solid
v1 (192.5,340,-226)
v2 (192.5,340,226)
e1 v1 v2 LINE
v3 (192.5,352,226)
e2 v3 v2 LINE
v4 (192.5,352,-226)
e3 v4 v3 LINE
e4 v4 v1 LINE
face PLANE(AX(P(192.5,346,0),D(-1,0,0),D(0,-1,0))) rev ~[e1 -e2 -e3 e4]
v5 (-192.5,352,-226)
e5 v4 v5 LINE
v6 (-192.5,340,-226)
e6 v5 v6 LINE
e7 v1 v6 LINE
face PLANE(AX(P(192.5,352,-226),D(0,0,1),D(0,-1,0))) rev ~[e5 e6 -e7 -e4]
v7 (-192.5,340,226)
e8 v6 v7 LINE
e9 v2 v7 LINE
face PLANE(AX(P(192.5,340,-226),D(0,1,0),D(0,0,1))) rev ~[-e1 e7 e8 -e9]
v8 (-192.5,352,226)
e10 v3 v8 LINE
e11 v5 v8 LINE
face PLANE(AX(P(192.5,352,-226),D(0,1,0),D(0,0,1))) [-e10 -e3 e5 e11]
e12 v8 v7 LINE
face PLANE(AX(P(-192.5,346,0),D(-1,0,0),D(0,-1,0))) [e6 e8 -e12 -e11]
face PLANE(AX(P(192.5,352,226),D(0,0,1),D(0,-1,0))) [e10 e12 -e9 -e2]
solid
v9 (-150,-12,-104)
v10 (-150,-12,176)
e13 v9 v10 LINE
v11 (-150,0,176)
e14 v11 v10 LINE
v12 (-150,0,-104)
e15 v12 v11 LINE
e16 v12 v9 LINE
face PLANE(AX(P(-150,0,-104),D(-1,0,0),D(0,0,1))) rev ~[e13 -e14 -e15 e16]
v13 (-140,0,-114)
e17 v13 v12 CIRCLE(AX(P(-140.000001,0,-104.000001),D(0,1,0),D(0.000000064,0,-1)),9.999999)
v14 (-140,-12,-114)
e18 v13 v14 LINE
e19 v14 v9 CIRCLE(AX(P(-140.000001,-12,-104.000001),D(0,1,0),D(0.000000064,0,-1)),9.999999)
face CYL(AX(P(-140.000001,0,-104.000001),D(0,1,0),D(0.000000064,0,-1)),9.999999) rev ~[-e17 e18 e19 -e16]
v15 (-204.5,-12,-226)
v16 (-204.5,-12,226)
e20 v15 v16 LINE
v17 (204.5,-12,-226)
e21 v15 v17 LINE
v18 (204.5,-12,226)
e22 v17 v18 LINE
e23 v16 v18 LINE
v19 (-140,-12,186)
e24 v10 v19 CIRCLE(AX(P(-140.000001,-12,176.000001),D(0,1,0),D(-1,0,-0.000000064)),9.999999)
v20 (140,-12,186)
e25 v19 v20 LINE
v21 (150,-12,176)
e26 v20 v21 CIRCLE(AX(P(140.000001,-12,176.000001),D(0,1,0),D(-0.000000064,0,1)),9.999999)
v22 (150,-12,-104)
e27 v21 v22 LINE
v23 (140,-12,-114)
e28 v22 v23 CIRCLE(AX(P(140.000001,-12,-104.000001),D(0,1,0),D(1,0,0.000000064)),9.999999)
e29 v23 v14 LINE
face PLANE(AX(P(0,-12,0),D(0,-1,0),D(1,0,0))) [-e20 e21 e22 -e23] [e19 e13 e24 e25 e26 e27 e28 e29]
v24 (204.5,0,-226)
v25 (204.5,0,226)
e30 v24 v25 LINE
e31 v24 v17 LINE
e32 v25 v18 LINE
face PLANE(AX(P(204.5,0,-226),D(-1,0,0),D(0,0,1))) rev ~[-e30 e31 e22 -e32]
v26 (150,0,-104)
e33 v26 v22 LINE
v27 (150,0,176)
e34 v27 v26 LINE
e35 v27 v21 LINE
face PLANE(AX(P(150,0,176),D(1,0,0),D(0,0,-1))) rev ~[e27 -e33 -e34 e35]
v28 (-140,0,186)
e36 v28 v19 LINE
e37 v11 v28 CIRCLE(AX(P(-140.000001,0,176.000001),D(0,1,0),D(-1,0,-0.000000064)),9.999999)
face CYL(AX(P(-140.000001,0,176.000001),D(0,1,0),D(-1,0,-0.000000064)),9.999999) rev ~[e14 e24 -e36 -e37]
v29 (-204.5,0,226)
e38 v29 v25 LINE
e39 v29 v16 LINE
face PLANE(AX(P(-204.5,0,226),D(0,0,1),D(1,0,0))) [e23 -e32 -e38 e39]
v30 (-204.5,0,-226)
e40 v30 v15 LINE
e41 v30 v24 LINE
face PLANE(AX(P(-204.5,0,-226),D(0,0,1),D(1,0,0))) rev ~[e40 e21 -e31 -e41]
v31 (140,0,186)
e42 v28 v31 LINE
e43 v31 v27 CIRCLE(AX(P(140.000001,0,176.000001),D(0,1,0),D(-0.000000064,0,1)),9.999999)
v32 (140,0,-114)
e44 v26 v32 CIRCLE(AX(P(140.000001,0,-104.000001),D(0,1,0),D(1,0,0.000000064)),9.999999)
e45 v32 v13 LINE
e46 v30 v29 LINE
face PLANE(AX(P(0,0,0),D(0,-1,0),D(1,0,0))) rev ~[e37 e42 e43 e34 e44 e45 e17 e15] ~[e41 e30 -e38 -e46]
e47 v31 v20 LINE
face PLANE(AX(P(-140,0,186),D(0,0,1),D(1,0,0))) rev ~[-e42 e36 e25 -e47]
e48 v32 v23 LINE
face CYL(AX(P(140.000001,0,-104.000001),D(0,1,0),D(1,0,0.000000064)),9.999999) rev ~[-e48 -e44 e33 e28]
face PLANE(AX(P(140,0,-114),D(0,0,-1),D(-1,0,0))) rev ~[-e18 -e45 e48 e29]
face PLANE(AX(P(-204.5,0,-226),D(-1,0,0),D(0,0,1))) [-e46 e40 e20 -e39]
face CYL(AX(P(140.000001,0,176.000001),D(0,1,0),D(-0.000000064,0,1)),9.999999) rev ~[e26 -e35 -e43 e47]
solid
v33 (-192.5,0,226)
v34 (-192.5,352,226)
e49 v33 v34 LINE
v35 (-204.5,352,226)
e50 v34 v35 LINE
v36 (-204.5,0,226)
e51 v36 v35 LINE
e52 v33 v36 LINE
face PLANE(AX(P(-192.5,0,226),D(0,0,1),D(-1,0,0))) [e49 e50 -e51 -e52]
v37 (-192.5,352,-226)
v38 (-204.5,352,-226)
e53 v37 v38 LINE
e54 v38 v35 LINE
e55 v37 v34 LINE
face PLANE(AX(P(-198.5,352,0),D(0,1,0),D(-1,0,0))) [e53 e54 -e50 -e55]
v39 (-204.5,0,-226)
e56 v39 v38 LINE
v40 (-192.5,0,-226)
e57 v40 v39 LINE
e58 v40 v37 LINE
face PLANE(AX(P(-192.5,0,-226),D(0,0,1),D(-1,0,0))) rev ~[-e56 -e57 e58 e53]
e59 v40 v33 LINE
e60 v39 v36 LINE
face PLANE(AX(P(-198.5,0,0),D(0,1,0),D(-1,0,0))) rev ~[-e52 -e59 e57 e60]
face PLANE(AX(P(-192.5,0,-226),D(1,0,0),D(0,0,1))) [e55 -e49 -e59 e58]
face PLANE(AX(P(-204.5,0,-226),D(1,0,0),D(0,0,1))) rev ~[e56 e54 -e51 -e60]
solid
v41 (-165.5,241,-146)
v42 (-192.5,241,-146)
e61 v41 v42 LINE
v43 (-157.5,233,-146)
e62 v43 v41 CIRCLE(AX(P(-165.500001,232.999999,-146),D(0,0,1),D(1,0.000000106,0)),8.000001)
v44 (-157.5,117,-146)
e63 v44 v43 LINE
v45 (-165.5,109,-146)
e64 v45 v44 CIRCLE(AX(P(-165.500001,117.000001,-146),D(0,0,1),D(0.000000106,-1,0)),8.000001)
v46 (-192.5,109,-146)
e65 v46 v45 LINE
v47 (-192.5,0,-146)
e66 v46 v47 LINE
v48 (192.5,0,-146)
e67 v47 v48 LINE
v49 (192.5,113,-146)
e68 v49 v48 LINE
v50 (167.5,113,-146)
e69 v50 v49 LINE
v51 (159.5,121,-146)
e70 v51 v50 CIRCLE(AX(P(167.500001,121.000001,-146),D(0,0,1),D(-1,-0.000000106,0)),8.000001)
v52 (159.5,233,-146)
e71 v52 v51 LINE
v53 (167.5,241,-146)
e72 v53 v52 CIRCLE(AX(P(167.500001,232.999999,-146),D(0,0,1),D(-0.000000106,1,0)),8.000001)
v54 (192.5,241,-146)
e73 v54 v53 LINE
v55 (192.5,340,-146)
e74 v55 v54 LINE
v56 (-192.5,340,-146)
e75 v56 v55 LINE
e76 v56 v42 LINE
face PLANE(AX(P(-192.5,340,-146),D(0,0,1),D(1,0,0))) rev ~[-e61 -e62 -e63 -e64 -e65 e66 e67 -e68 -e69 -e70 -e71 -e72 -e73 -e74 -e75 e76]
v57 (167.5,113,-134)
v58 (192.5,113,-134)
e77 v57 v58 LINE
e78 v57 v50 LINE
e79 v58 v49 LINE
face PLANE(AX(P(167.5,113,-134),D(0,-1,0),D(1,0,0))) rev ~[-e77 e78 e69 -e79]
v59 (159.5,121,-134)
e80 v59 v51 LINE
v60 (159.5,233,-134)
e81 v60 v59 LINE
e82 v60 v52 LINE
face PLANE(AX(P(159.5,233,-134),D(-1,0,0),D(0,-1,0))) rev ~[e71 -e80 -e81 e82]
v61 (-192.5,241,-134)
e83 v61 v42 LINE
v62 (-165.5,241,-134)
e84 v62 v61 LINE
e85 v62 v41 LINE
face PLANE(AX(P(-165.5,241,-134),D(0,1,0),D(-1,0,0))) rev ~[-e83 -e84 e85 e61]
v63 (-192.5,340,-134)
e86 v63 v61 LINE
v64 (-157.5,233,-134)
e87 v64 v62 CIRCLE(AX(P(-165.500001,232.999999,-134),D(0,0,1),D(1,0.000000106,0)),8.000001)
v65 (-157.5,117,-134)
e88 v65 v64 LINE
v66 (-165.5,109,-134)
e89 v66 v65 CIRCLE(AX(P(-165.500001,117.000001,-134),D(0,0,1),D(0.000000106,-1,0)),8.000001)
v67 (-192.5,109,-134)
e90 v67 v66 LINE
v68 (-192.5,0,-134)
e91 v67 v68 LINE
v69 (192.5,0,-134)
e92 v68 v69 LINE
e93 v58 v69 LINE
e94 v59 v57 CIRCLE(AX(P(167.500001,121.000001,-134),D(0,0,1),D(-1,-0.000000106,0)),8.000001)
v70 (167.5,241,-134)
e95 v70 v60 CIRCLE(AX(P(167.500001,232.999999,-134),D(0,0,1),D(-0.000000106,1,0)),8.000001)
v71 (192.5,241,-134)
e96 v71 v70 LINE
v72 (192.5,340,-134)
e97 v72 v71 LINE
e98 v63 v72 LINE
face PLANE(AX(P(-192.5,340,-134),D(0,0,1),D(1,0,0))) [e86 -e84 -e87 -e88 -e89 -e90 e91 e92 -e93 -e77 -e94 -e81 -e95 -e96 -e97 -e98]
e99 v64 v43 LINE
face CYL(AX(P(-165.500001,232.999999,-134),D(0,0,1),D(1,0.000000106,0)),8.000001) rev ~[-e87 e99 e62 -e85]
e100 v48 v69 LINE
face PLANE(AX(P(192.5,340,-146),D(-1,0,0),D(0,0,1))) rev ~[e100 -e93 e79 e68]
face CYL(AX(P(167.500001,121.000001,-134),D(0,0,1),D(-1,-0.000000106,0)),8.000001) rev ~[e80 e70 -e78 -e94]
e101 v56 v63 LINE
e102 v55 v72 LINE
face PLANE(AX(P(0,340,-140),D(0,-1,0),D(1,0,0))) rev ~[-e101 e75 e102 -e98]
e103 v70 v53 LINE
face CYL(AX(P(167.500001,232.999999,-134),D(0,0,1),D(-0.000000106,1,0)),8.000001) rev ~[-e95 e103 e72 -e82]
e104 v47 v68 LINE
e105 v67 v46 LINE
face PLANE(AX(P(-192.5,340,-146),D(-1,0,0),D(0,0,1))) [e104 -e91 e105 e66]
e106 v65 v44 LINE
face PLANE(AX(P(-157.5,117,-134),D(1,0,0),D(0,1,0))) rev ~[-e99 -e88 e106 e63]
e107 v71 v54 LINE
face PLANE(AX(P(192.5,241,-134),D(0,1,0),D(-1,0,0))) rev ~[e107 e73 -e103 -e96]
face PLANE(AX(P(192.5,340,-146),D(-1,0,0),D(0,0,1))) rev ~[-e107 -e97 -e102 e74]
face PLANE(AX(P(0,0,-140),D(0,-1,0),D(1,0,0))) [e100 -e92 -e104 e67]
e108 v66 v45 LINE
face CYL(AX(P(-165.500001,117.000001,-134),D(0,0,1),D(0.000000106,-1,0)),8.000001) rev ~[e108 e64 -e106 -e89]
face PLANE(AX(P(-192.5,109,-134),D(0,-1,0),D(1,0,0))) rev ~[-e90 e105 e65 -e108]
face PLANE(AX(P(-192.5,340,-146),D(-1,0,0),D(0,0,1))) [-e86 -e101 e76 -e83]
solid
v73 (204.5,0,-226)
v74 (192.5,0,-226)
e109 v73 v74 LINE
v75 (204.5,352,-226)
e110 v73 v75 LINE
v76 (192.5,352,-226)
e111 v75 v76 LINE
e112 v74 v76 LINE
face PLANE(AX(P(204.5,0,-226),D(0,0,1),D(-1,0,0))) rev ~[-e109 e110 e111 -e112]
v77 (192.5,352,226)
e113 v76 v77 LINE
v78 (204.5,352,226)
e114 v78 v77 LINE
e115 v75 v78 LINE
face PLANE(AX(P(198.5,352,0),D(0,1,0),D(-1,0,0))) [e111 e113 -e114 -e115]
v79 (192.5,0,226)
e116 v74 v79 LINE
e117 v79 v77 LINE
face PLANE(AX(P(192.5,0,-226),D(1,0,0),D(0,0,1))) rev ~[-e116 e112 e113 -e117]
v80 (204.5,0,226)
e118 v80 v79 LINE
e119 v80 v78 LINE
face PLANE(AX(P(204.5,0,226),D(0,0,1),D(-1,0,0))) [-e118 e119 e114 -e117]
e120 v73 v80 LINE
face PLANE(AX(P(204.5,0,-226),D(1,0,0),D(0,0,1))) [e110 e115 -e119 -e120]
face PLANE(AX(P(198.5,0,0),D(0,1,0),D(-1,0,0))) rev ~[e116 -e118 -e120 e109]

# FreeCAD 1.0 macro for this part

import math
import FreeCAD as App
import Part
import Sketcher
from FreeCAD import Vector
Q = App.Units.Quantity


def add_polygon(sketch, points):
    """Adds a closed chain of lines whose ends are joined by coincident constraints."""
    first, n = sketch.GeometryCount, len(points)
    for a, b in zip(points, points[1:] + points[:1]):
        sketch.addGeometry(Part.LineSegment(App.Vector(*a, 0), App.Vector(*b, 0)), False)
    for i in range(n):
        sketch.addConstraint(Sketcher.Constraint("Coincident", first + i, 2, first + (i + 1) % n, 1))

doc = App.newDocument("Part")
params = doc.addObject("Spreadsheet::Sheet", "Params")
for row, (alias, value) in enumerate([
    ("sketch1_radius", "9.999999 mm"),
    ("sketch1_width", "409 mm"),
    ("sketch1_width2", "280 mm"),
    ("sketch1_height", "452 mm"),
    ("pad1_length", "12 mm"),
    ("sketch2_width", "12 mm"),
    ("sketch2_height", "452 mm"),
    ("pad2_length", "352 mm"),
    ("sketch3_width", "12 mm"),
    ("sketch3_height", "452 mm"),
    ("pad3_length", "385 mm"),
    ("sketch4_width", "385 mm"),
    ("sketch4_height", "12 mm"),
    ("pad4_length", "340 mm"),
    ("sketch5_radius", "8.000001 mm"),
    ("sketch5_width", "27 mm"),
    ("sketch5_width2", "25 mm"),
    ("sketch5_height", "132 mm"),
    ("sketch5_height2", "128 mm"),
], start=1):
    params.set(f"A{row}", alias)
    params.set(f"B{row}", "=" + value)
    params.setAlias(f"B{row}", alias)

body = doc.addObject("PartDesign::Body", "Body")

# Sketch on XZ plane
sketch1 = body.newObject("Sketcher::SketchObject", "Sketch")
sketch1.AttachmentSupport = (doc.getObject("XZ_Plane"), [""])
sketch1.MapMode = "FlatFace"
add_polygon(sketch1, [(-204, 226), (-204, -226), (204, -226), (204, 226)])  # lines 0-3
sketch1.addGeometry(Part.LineSegment(Vector(150, 176, 0), Vector(150, -104, 0)), False)  # 4
sketch1.addGeometry(Part.ArcOfCircle(Part.Circle(Vector(140, -104, 0), Vector(0, 0, 1), 10), math.radians(-90), math.radians(0)), False)  # 5
sketch1.addGeometry(Part.LineSegment(Vector(140, -114, 0), Vector(-140, -114, 0)), False)  # 6
sketch1.addGeometry(Part.ArcOfCircle(Part.Circle(Vector(-140, -104, 0), Vector(0, 0, 1), 10), math.radians(180), math.radians(270)), False)  # 7
sketch1.addGeometry(Part.LineSegment(Vector(-150, -104, 0), Vector(-150, 176, 0)), False)  # 8
sketch1.addGeometry(Part.ArcOfCircle(Part.Circle(Vector(-140, 176, 0), Vector(0, 0, 1), 10), math.radians(90), math.radians(180)), False)  # 9
sketch1.addGeometry(Part.LineSegment(Vector(-140, 186, 0), Vector(140, 186, 0)), False)  # 10
sketch1.addGeometry(Part.ArcOfCircle(Part.Circle(Vector(140, 176, 0), Vector(0, 0, 1), 10), math.radians(0), math.radians(90)), False)  # 11
sketch1.addConstraint([
    Sketcher.Constraint("Tangent", 4, 2, 5, 2),
    Sketcher.Constraint("Tangent", 5, 1, 6, 1),
    Sketcher.Constraint("Tangent", 6, 2, 7, 2),
    Sketcher.Constraint("Tangent", 7, 1, 8, 1),
    Sketcher.Constraint("Tangent", 8, 2, 9, 2),
    Sketcher.Constraint("Tangent", 9, 1, 10, 1),
    Sketcher.Constraint("Tangent", 10, 2, 11, 2),
    Sketcher.Constraint("Tangent", 11, 1, 4, 1),
    Sketcher.Constraint("Vertical", 0),
    Sketcher.Constraint("Horizontal", 1),
    Sketcher.Constraint("Vertical", 2),
    Sketcher.Constraint("Horizontal", 3),
    Sketcher.Constraint("Vertical", 4),
    Sketcher.Constraint("Horizontal", 6),
    Sketcher.Constraint("Vertical", 8),
    Sketcher.Constraint("Horizontal", 10),
    Sketcher.Constraint("Equal", 5, 7),
    Sketcher.Constraint("Equal", 7, 9),
    Sketcher.Constraint("Equal", 9, 11),
    Sketcher.Constraint("Symmetric", 0, 2, 2, 2, -1, 1),
    Sketcher.Constraint("Equal", 10, 4),
    Sketcher.Constraint("Radius", 5, Q("9.999999 mm")),
    Sketcher.Constraint("DistanceX", 1, 1, 1, 2, Q("409 mm")),
    Sketcher.Constraint("DistanceX", 6, 2, 6, 1, Q("280 mm")),
    Sketcher.Constraint("DistanceY", 0, 2, 0, 1, Q("452 mm")),
    Sketcher.Constraint("DistanceX", -1, 1, 5, 3, Q("140.000001 mm")),
    Sketcher.Constraint("DistanceY", 5, 3, -1, 1, Q("104.000001 mm")),
])
sketch1.setExpression("Constraints[25]", "Params.sketch1_radius")
sketch1.setExpression("Constraints[26]", "Params.sketch1_width")
sketch1.setExpression("Constraints[27]", "Params.sketch1_width2")
sketch1.setExpression("Constraints[28]", "Params.sketch1_height")
pad1 = body.newObject("PartDesign::Pad", "Pad")
pad1.Profile = sketch1
pad1.setExpression("Length", "Params.pad1_length")
body2 = doc.addObject("PartDesign::Body", "Body001")
body2.AllowCompound = True

# Sketch on XZ plane
sketch2 = body2.newObject("Sketcher::SketchObject", "Sketch001")
sketch2.AttachmentSupport = (doc.getObject("XZ_Plane001"), [""])
sketch2.MapMode = "FlatFace"
add_polygon(sketch2, [(204, 226), (204, -226), (192, -226), (192, 226)])  # lines 0-3
add_polygon(sketch2, [(-192, 226), (-192, -226), (-204, -226), (-204, 226)])  # lines 4-7
sketch2.addConstraint([
    Sketcher.Constraint("Vertical", 0),
    Sketcher.Constraint("Horizontal", 1),
    Sketcher.Constraint("Vertical", 2),
    Sketcher.Constraint("Horizontal", 3),
    Sketcher.Constraint("Vertical", 4),
    Sketcher.Constraint("Horizontal", 5),
    Sketcher.Constraint("Vertical", 6),
    Sketcher.Constraint("Horizontal", 7),
    Sketcher.Constraint("Symmetric", 2, 2, 4, 2, -1, 1),
    Sketcher.Constraint("Symmetric", 0, 2, 6, 2, -1, 1),
    Sketcher.Constraint("Horizontal", 1, 2, 4, 2),
    Sketcher.Constraint("DistanceX", 1, 2, 1, 1, Q("12 mm")),
    Sketcher.Constraint("DistanceY", 0, 2, 0, 1, Q("452 mm")),
    Sketcher.Constraint("DistanceX", 4, 2, 1, 2, Q("385 mm")),
])
sketch2.setExpression("Constraints[19]", "Params.sketch2_width")
sketch2.setExpression("Constraints[20]", "Params.sketch2_height")
pad2 = body2.newObject("PartDesign::Pad", "Pad001")
pad2.Profile = sketch2
pad2.setExpression("Length", "Params.pad2_length")
pad2.Reversed = True
body3 = doc.addObject("PartDesign::Body", "Body002")

# Sketch on YZ plane
sketch3 = body3.newObject("Sketcher::SketchObject", "Sketch002")
sketch3.AttachmentSupport = (doc.getObject("YZ_Plane002"), [""])
sketch3.MapMode = "FlatFace"
sketch3.AttachmentOffset = App.Placement(Vector(0, 0, 192.5), App.Rotation())
add_polygon(sketch3, [(352, 226), (352, -226), (340, -226), (340, 226)])  # lines 0-3
sketch3.addConstraint([
    Sketcher.Constraint("Vertical", 0),
    Sketcher.Constraint("Horizontal", 1),
    Sketcher.Constraint("Vertical", 2),
    Sketcher.Constraint("Horizontal", 3),
    Sketcher.Constraint("DistanceX", 1, 2, 1, 1, Q("12 mm")),
    Sketcher.Constraint("DistanceY", 0, 2, 0, 1, Q("452 mm")),
    Sketcher.Constraint("DistanceX", -1, 1, 0, 2, Q("352 mm")),
    Sketcher.Constraint("DistanceY", 0, 2, -1, 1, Q("226 mm")),
])
sketch3.setExpression("Constraints[8]", "Params.sketch3_width")
sketch3.setExpression("Constraints[9]", "Params.sketch3_height")
pad3 = body3.newObject("PartDesign::Pad", "Pad002")
pad3.Profile = sketch3
pad3.setExpression("Length", "Params.pad3_length")
pad3.Reversed = True
body4 = doc.addObject("PartDesign::Body", "Body003")

# Sketch on XZ plane
sketch4 = body4.newObject("Sketcher::SketchObject", "Sketch003")
sketch4.AttachmentSupport = (doc.getObject("XZ_Plane003"), [""])
sketch4.MapMode = "FlatFace"
sketch4.AttachmentOffset = App.Placement(Vector(0, 0, -340), App.Rotation())
add_polygon(sketch4, [(-192, -134), (-192, -146), (192, -146), (192, -134)])  # lines 0-3
sketch4.addConstraint([
    Sketcher.Constraint("Vertical", 0),
    Sketcher.Constraint("Horizontal", 1),
    Sketcher.Constraint("Vertical", 2),
    Sketcher.Constraint("Horizontal", 3),
    Sketcher.Constraint("DistanceX", 1, 1, 1, 2, Q("385 mm")),
    Sketcher.Constraint("DistanceY", 0, 2, 0, 1, Q("12 mm")),
    Sketcher.Constraint("DistanceY", 0, 2, -1, 1, Q("146 mm")),
    Sketcher.Constraint("DistanceX", 0, 2, -1, 1, Q("192.5 mm")),
])
sketch4.setExpression("Constraints[8]", "Params.sketch4_width")
sketch4.setExpression("Constraints[9]", "Params.sketch4_height")
pad4 = body4.newObject("PartDesign::Pad", "Pad003")
pad4.Profile = sketch4
pad4.setExpression("Length", "Params.pad4_length")

# Sketch on XY plane
sketch5 = body4.newObject("Sketcher::SketchObject", "Sketch004")
sketch5.AttachmentSupport = (doc.getObject("XY_Plane003"), [""])
sketch5.MapMode = "FlatFace"
sketch5.AttachmentOffset = App.Placement(Vector(0, 0, -134), App.Rotation())
sketch5.addGeometry([
    Part.LineSegment(Vector(-166, 241, 0), Vector(-192, 241, 0)),  # 0
    Part.LineSegment(Vector(-192, 241, 0), Vector(-192, 109, 0)),  # 1
    Part.LineSegment(Vector(-192, 109, 0), Vector(-166, 109, 0)),  # 2
    Part.ArcOfCircle(Part.Circle(Vector(-166, 117, 0), Vector(0, 0, 1), 8), math.radians(-90), math.radians(0)),  # 3
    Part.LineSegment(Vector(-158, 117, 0), Vector(-158, 233, 0)),  # 4
    Part.ArcOfCircle(Part.Circle(Vector(-166, 233, 0), Vector(0, 0, 1), 8), math.radians(0), math.radians(90)),  # 5
    Part.LineSegment(Vector(192, 113, 0), Vector(192, 241, 0)),  # 6
    Part.LineSegment(Vector(192, 241, 0), Vector(168, 241, 0)),  # 7
    Part.ArcOfCircle(Part.Circle(Vector(168, 233, 0), Vector(0, 0, 1), 8), math.radians(90), math.radians(180)),  # 8
    Part.LineSegment(Vector(160, 233, 0), Vector(160, 121, 0)),  # 9
    Part.ArcOfCircle(Part.Circle(Vector(168, 121, 0), Vector(0, 0, 1), 8), math.radians(-180), math.radians(-90)),  # 10
    Part.LineSegment(Vector(168, 113, 0), Vector(192, 113, 0)),  # 11
], False)
sketch5.addConstraint([
    Sketcher.Constraint("Coincident", 0, 2, 1, 1),
    Sketcher.Constraint("Coincident", 1, 2, 2, 1),
    Sketcher.Constraint("Tangent", 2, 2, 3, 1),
    Sketcher.Constraint("Tangent", 3, 2, 4, 1),
    Sketcher.Constraint("Tangent", 4, 2, 5, 1),
    Sketcher.Constraint("Tangent", 5, 2, 0, 1),
    Sketcher.Constraint("Coincident", 6, 2, 7, 1),
    Sketcher.Constraint("Tangent", 7, 2, 8, 1),
    Sketcher.Constraint("Tangent", 8, 2, 9, 1),
    Sketcher.Constraint("Tangent", 9, 2, 10, 1),
    Sketcher.Constraint("Tangent", 10, 2, 11, 1),
    Sketcher.Constraint("Coincident", 11, 2, 6, 1),
    Sketcher.Constraint("Horizontal", 0),
    Sketcher.Constraint("Vertical", 1),
    Sketcher.Constraint("Horizontal", 2),
    Sketcher.Constraint("Vertical", 4),
    Sketcher.Constraint("Vertical", 6),
    Sketcher.Constraint("Horizontal", 7),
    Sketcher.Constraint("Vertical", 9),
    Sketcher.Constraint("Horizontal", 11),
    Sketcher.Constraint("Equal", 3, 5),
    Sketcher.Constraint("Equal", 5, 8),
    Sketcher.Constraint("Equal", 8, 10),
    Sketcher.Constraint("Symmetric", 0, 2, 6, 2, -2),
    Sketcher.Constraint("Radius", 3, Q("8.000001 mm")),
    Sketcher.Constraint("DistanceX", 0, 2, 0, 1, Q("27 mm")),
    Sketcher.Constraint("DistanceX", 7, 2, 7, 1, Q("25 mm")),
    Sketcher.Constraint("DistanceY", 1, 2, 1, 1, Q("132 mm")),
    Sketcher.Constraint("DistanceY", 6, 1, 6, 2, Q("128 mm")),
    Sketcher.Constraint("DistanceY", -1, 1, 3, 3, Q("117.000001 mm")),
    Sketcher.Constraint("DistanceX", 5, 3, 8, 3, Q("333.000002 mm")),
])
sketch5.setExpression("Constraints[24]", "Params.sketch5_radius")
sketch5.setExpression("Constraints[25]", "Params.sketch5_width")
sketch5.setExpression("Constraints[26]", "Params.sketch5_width2")
sketch5.setExpression("Constraints[27]", "Params.sketch5_height")
sketch5.setExpression("Constraints[28]", "Params.sketch5_height2")
pocket1 = body4.newObject("PartDesign::Pocket", "Pocket")
pocket1.Profile = sketch5
pocket1.Type = "ThroughAll"

doc.recompute()
